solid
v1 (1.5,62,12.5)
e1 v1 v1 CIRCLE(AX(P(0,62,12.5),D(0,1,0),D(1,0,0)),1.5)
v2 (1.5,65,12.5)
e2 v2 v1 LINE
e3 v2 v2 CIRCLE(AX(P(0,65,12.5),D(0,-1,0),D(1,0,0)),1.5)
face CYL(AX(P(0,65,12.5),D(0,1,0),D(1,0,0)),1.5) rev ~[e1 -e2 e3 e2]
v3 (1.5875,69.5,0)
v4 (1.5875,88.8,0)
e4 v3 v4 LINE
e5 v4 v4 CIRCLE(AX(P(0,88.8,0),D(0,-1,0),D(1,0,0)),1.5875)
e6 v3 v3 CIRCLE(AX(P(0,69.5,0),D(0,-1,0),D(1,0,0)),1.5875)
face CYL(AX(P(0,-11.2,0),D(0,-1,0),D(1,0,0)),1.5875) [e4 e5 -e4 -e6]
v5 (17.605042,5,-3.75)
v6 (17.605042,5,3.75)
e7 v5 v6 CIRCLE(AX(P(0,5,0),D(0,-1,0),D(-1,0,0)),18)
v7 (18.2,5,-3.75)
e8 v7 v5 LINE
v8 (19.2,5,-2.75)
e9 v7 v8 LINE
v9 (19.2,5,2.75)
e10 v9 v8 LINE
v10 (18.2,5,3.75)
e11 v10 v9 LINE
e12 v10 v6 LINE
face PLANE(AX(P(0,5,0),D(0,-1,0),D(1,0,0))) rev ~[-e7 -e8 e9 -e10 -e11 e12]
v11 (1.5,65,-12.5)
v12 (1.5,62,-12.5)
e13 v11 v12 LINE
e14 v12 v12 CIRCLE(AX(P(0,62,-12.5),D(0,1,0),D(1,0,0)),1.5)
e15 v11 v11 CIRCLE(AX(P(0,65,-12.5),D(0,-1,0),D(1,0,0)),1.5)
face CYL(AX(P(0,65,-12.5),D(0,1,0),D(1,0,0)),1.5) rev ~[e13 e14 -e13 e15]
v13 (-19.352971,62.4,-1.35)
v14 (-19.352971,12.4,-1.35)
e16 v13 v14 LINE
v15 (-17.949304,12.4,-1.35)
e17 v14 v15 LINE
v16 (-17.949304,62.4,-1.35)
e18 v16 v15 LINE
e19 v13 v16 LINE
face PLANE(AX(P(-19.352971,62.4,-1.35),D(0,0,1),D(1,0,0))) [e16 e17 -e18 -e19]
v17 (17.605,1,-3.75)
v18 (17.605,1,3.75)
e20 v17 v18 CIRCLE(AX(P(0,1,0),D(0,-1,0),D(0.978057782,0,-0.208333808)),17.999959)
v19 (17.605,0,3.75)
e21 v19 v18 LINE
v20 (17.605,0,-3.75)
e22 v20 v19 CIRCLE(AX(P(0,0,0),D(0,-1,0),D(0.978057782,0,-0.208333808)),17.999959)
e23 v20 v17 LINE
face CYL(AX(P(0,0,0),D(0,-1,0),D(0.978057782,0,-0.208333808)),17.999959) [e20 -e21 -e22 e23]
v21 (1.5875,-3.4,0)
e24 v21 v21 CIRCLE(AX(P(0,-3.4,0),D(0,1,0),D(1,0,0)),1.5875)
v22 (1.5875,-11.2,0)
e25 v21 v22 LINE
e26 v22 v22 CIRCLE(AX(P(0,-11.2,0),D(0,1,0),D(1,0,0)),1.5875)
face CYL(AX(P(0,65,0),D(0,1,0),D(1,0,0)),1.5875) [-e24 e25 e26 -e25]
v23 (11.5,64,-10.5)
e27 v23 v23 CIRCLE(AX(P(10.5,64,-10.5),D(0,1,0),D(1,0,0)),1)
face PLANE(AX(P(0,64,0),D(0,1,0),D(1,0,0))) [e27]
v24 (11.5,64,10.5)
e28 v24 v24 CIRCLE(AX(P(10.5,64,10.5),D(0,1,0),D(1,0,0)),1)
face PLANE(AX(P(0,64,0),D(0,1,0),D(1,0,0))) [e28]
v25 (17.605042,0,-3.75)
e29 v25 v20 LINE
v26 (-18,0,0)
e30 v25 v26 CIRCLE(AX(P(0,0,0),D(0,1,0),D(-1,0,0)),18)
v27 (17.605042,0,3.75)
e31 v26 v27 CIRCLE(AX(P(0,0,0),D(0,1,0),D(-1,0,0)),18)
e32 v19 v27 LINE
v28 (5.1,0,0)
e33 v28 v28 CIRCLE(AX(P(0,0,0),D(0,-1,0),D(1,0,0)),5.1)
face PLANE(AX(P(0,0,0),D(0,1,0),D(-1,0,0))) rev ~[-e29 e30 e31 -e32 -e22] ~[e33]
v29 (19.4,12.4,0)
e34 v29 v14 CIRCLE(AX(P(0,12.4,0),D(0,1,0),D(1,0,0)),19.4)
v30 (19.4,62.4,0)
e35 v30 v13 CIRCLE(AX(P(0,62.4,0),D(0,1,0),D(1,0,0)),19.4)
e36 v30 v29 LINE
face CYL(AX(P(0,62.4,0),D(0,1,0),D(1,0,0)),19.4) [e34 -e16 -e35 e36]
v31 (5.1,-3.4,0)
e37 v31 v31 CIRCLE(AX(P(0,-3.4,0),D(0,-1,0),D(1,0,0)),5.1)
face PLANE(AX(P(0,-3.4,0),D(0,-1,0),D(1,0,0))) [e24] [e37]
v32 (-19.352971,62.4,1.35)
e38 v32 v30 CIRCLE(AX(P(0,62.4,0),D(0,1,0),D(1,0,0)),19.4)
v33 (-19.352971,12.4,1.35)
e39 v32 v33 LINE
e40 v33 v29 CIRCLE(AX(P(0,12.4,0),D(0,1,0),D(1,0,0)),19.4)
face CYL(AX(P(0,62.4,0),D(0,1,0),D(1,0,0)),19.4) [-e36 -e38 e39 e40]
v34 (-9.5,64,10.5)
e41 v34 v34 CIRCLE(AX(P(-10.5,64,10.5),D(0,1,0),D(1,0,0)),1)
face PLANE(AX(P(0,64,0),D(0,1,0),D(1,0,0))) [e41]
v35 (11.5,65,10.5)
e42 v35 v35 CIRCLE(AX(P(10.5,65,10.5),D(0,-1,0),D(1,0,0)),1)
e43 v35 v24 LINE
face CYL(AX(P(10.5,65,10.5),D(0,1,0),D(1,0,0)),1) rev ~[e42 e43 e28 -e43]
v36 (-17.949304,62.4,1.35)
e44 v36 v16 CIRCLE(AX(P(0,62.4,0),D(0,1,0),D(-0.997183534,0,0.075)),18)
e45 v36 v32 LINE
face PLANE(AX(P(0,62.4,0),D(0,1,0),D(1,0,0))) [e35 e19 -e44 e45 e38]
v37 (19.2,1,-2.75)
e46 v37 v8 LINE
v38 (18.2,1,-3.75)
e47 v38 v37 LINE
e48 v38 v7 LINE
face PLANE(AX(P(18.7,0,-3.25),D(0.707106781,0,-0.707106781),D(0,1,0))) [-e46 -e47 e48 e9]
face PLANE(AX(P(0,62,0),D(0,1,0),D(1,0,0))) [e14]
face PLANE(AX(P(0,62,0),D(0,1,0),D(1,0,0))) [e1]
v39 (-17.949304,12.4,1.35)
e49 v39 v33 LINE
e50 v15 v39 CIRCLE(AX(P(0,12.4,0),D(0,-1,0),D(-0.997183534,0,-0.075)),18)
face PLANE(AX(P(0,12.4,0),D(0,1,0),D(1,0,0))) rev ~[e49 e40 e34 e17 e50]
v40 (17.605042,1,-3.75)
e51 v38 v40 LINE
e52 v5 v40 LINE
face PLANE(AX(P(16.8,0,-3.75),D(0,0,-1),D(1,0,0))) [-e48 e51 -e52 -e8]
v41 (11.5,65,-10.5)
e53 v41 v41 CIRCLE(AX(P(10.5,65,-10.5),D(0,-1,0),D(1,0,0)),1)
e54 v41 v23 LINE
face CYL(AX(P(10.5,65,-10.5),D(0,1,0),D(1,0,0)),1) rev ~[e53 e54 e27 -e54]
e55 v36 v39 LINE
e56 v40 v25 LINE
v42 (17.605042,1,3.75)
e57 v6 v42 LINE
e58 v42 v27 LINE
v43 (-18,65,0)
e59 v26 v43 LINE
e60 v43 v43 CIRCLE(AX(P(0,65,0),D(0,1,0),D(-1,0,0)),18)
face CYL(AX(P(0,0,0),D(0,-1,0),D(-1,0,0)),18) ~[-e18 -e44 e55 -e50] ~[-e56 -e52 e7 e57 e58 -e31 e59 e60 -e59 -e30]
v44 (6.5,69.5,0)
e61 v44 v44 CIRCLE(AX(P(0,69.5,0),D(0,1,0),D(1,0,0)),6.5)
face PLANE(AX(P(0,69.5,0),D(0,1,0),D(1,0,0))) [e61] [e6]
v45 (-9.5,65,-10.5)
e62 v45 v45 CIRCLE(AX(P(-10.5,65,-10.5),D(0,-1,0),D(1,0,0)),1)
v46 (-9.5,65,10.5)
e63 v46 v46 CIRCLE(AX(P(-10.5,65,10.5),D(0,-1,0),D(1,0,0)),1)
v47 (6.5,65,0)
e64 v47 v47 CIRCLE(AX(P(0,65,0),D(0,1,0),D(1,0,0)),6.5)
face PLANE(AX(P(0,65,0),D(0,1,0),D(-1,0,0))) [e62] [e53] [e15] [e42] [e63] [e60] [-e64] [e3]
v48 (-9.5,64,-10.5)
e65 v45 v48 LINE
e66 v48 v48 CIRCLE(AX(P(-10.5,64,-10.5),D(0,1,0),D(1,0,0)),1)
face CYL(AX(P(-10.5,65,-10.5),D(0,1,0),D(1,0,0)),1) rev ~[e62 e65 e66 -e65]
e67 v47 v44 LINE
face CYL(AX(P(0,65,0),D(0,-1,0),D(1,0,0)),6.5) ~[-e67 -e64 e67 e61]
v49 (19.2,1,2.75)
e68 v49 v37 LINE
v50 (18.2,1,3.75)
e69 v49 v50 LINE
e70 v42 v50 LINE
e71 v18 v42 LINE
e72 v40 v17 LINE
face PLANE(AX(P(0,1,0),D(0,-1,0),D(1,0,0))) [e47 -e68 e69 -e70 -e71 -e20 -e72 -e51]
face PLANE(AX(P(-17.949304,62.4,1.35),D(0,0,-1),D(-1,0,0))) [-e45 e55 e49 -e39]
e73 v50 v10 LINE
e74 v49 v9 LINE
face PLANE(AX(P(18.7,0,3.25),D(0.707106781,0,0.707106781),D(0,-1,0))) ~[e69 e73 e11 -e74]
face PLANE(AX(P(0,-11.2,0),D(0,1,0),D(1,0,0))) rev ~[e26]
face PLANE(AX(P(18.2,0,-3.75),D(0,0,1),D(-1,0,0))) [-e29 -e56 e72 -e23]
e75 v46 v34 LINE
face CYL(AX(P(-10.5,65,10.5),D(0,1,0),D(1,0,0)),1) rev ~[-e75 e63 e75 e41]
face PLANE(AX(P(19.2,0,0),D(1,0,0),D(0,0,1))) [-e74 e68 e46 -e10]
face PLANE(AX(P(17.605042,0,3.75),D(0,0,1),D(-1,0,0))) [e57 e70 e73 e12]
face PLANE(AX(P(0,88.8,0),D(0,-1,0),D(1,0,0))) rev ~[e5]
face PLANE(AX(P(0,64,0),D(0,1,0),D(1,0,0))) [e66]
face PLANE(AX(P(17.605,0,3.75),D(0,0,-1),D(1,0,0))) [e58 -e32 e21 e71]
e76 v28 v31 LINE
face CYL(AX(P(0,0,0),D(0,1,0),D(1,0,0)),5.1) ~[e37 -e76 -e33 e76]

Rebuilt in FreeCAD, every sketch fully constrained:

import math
import FreeCAD as App
import Part
import Sketcher


def edges_at(feature, points):
    """Names of the edges that pass closest to the given points."""
    edges = feature.Shape.Edges
    near = lambda p: min(range(len(edges)), key=lambda i: edges[i].distToShape(Part.Vertex(*p))[0])
    return sorted({f"Edge{near(p) + 1}" for p in points})

doc = App.newDocument("Part")
body = doc.addObject("PartDesign::Body", "Body")

sketch1 = doc.addObject("Sketcher::SketchObject", "Sketch")
body.addObject(sketch1)
sketch1.AttachmentSupport = (doc.XZ_Plane, [""])
sketch1.MapMode = "FlatFace"
sketch1.addGeometry(Part.Circle(App.Vector(0, 0, 0), App.Vector(0, 0, 1), 18), False)
sketch1.addConstraint([
    Sketcher.Constraint("Coincident", 0, 3, -1, 1),
    Sketcher.Constraint("Diameter", 0, 36.0),
])
pad1 = doc.addObject("PartDesign::Pad", "Pad")
body.addObject(pad1)
pad1.Profile = sketch1
pad1.Length = 65
pad1.Reversed = True

sketch2 = doc.addObject("Sketcher::SketchObject", "Sketch001")
body.addObject(sketch2)
sketch2.AttachmentSupport = (doc.XZ_Plane, [""])
sketch2.MapMode = "FlatFace"
sketch2.AttachmentOffset = App.Placement(App.Vector(0, 0, -62.4), App.Rotation())
sketch2.addGeometry([
    Part.ArcOfCircle(Part.Circle(App.Vector(0, 0, 0), App.Vector(0, 0, 1), 18), math.radians(-175.698778), math.radians(175.698778)),
    Part.LineSegment(App.Vector(-17.949304, 1.35, 0), App.Vector(-19.352971, 1.35, 0)),
    Part.ArcOfCircle(Part.Circle(App.Vector(0, 0, 0), App.Vector(0, 0, 1), 19.4), math.radians(-176.009698), math.radians(176.009698)),
    Part.LineSegment(App.Vector(-19.352971, -1.35, 0), App.Vector(-17.949304, -1.35, 0)),
], False)
sketch2.addConstraint([
    Sketcher.Constraint("Coincident", 0, 2, 1, 1),
    Sketcher.Constraint("Coincident", 1, 2, 2, 2),
    Sketcher.Constraint("Coincident", 2, 1, 3, 1),
    Sketcher.Constraint("Coincident", 3, 2, 0, 1),
    Sketcher.Constraint("Horizontal", 1),
    Sketcher.Constraint("Horizontal", 3),
    Sketcher.Constraint("Coincident", 0, 3, -1, 1),
    Sketcher.Constraint("Coincident", 2, 3, -1, 1),
    Sketcher.Constraint("Vertical", 1, 2, 2, 1),
    Sketcher.Constraint("Radius", 2, 19.4),
    Sketcher.Constraint("Radius", 0, 18.0),
    Sketcher.Constraint("DistanceY", 2, 1, 1, 2, 2.7),
])
pad2 = doc.addObject("PartDesign::Pad", "Pad001")
body.addObject(pad2)
pad2.Profile = sketch2
pad2.Length = 50

sketch3 = doc.addObject("Sketcher::SketchObject", "Sketch002")
body.addObject(sketch3)
sketch3.AttachmentSupport = (doc.XZ_Plane, [""])
sketch3.MapMode = "FlatFace"
sketch3.AttachmentOffset = App.Placement(App.Vector(0, 0, -65), App.Rotation())
sketch3.addGeometry(Part.Circle(App.Vector(0, 0, 0), App.Vector(0, 0, 1), 6.5), False)
sketch3.addConstraint([
    Sketcher.Constraint("Coincident", 0, 3, -1, 1),
    Sketcher.Constraint("Diameter", 0, 13.0),
])
pad3 = doc.addObject("PartDesign::Pad", "Pad002")
body.addObject(pad3)
pad3.Profile = sketch3
pad3.Length = 4.5
pad3.Reversed = True

sketch4 = doc.addObject("Sketcher::SketchObject", "Sketch003")
body.addObject(sketch4)
sketch4.AttachmentSupport = (doc.XZ_Plane, [""])
sketch4.MapMode = "FlatFace"
sketch4.addGeometry(Part.Circle(App.Vector(0, 0, 0), App.Vector(0, 0, 1), 5.1), False)
sketch4.addConstraint([
    Sketcher.Constraint("Coincident", 0, 3, -1, 1),
    Sketcher.Constraint("Diameter", 0, 10.2),
])
pad4 = doc.addObject("PartDesign::Pad", "Pad003")
body.addObject(pad4)
pad4.Profile = sketch4
pad4.Length = 3.4

sketch5 = doc.addObject("Sketcher::SketchObject", "Sketch004")
body.addObject(sketch5)
sketch5.AttachmentSupport = (doc.XZ_Plane, [""])
sketch5.MapMode = "FlatFace"
sketch5.AttachmentOffset = App.Placement(App.Vector(0, 0, -65), App.Rotation())
sketch5.addGeometry([
    Part.Circle(App.Vector(0, 12.5, 0), App.Vector(0, 0, 1), 1.5),
    Part.Circle(App.Vector(0, -12.5, 0), App.Vector(0, 0, 1), 1.5),
], False)
sketch5.addConstraint([
    Sketcher.Constraint("Equal", 0, 1),
    Sketcher.Constraint("Symmetric", 0, 3, 1, 3, -1, 1),
    Sketcher.Constraint("PointOnObject", 0, 3, -2),
    Sketcher.Constraint("Diameter", 0, 3.0),
    Sketcher.Constraint("DistanceY", -1, 1, 0, 3, 12.5),
])
pocket1 = doc.addObject("PartDesign::Pocket", "Pocket")
body.addObject(pocket1)
pocket1.Profile = sketch5
pocket1.Length = 3
pocket1.Reversed = True

sketch6 = doc.addObject("Sketcher::SketchObject", "Sketch005")
body.addObject(sketch6)
sketch6.AttachmentSupport = (doc.XZ_Plane, [""])
sketch6.MapMode = "FlatFace"
sketch6.AttachmentOffset = App.Placement(App.Vector(0, 0, -65), App.Rotation())
sketch6.addGeometry([
    Part.Circle(App.Vector(-10.5, -10.5, 0), App.Vector(0, 0, 1), 1),
    Part.Circle(App.Vector(10.5, -10.5, 0), App.Vector(0, 0, 1), 1),
    Part.Circle(App.Vector(-10.5, 10.5, 0), App.Vector(0, 0, 1), 1),
    Part.Circle(App.Vector(10.5, 10.5, 0), App.Vector(0, 0, 1), 1),
], False)
sketch6.addConstraint([
    Sketcher.Constraint("Equal", 0, 1),
    Sketcher.Constraint("Equal", 1, 2),
    Sketcher.Constraint("Equal", 2, 3),
    Sketcher.Constraint("Symmetric", 1, 3, 2, 3, -1, 1),
    Sketcher.Constraint("Symmetric", 0, 3, 3, 3, -1, 1),
    Sketcher.Constraint("Symmetric", 0, 3, 1, 3, -2),
    Sketcher.Constraint("Diameter", 0, 2.0),
    Sketcher.Constraint("DistanceX", 0, 3, 1, 3, 21.0),
    Sketcher.Constraint("DistanceY", 0, 3, 2, 3, 21.0),
])
pocket2 = doc.addObject("PartDesign::Pocket", "Pocket001")
body.addObject(pocket2)
pocket2.Profile = sketch6
pocket2.Length = 1
pocket2.Reversed = True

sketch7 = doc.addObject("Sketcher::SketchObject", "Sketch006")
body.addObject(sketch7)
sketch7.AttachmentSupport = (doc.XZ_Plane, [""])
sketch7.MapMode = "FlatFace"
sketch7.AttachmentOffset = App.Placement(App.Vector(0, 0, -65), App.Rotation())
sketch7.addGeometry(Part.Circle(App.Vector(0, 0, 0), App.Vector(0, 0, 1), 1.5875), False)
sketch7.addConstraint([
    Sketcher.Constraint("Coincident", 0, 3, -1, 1),
    Sketcher.Constraint("Diameter", 0, 3.175),
])
pad5 = doc.addObject("PartDesign::Pad", "Pad004")
body.addObject(pad5)
pad5.Profile = sketch7
pad5.Length = 76.2

sketch8 = doc.addObject("Sketcher::SketchObject", "Sketch007")
body.addObject(sketch8)
sketch8.AttachmentSupport = (doc.XZ_Plane, [""])
sketch8.MapMode = "FlatFace"
sketch8.AttachmentOffset = App.Placement(App.Vector(0, 0, 11.2), App.Rotation())
sketch8.addGeometry(Part.Circle(App.Vector(0, 0, 0), App.Vector(0, 0, 1), 1.5875), False)
sketch8.addConstraint([
    Sketcher.Constraint("Coincident", 0, 3, -1, 1),
    Sketcher.Constraint("Diameter", 0, 3.175),
])
pad6 = doc.addObject("PartDesign::Pad", "Pad005")
body.addObject(pad6)
pad6.Profile = sketch8
pad6.Length = 100
pad6.Reversed = True

sketch9 = doc.addObject("Sketcher::SketchObject", "Sketch008")
body.addObject(sketch9)
sketch9.AttachmentSupport = (doc.XZ_Plane, [""])
sketch9.MapMode = "FlatFace"
sketch9.addGeometry([
    Part.LineSegment(App.Vector(16.8, 3.75, 0), App.Vector(16.8, -3.75, 0)),
    Part.LineSegment(App.Vector(16.8, -3.75, 0), App.Vector(19.2, -3.75, 0)),
    Part.LineSegment(App.Vector(19.2, -3.75, 0), App.Vector(19.2, 3.75, 0)),
    Part.LineSegment(App.Vector(19.2, 3.75, 0), App.Vector(16.8, 3.75, 0)),
], False)
sketch9.addConstraint([
    Sketcher.Constraint("Coincident", 0, 2, 1, 1),
    Sketcher.Constraint("Coincident", 1, 2, 2, 1),
    Sketcher.Constraint("Coincident", 2, 2, 3, 1),
    Sketcher.Constraint("Coincident", 3, 2, 0, 1),
    Sketcher.Constraint("Vertical", 0),
    Sketcher.Constraint("Horizontal", 1),
    Sketcher.Constraint("Vertical", 2),
    Sketcher.Constraint("Horizontal", 3),
    Sketcher.Constraint("DistanceX", 1, 1, 1, 2, 2.4),
    Sketcher.Constraint("DistanceY", 0, 2, 0, 1, 7.5),
    Sketcher.Constraint("DistanceX", -1, 1, 1, 2, 19.2),
    Sketcher.Constraint("DistanceY", 0, 2, -1, 1, 3.75),
])
pad7 = doc.addObject("PartDesign::Pad", "Pad006")
body.addObject(pad7)
pad7.Profile = sketch9
pad7.Length = 5
pad7.Reversed = True
doc.recompute()

chamfer = doc.addObject("PartDesign::Chamfer", "Chamfer")
body.addObject(chamfer)
chamfer.Base = (pad7, edges_at(pad7, [(19.2, 2.5, -3.75), (19.2, 2.5, 3.75)]))
chamfer.Size = 1

sketch10 = doc.addObject("Sketcher::SketchObject", "Sketch009")
body.addObject(sketch10)
sketch10.AttachmentSupport = (doc.XZ_Plane, [""])
sketch10.MapMode = "FlatFace"
sketch10.addGeometry([
    Part.LineSegment(App.Vector(19.2, -2.75, 0), App.Vector(19.2, 2.75, 0)),
    Part.LineSegment(App.Vector(19.2, 2.75, 0), App.Vector(18.2, 3.75, 0)),
    Part.LineSegment(App.Vector(18.2, 3.75, 0), App.Vector(17.605, 3.75, 0)),
    Part.ArcOfCircle(Part.Circle(App.Vector(0, 0, 0), App.Vector(0, 0, 1), 17.999959), math.radians(-12.024727), math.radians(12.024727)),
    Part.LineSegment(App.Vector(17.605, -3.75, 0), App.Vector(18.2, -3.75, 0)),
    Part.LineSegment(App.Vector(18.2, -3.75, 0), App.Vector(19.2, -2.75, 0)),
], False)
sketch10.addConstraint([
    Sketcher.Constraint("Coincident", 0, 2, 1, 1),
    Sketcher.Constraint("Coincident", 1, 2, 2, 1),
    Sketcher.Constraint("Coincident", 2, 2, 3, 2),
    Sketcher.Constraint("Coincident", 3, 1, 4, 1),
    Sketcher.Constraint("Coincident", 4, 2, 5, 1),
    Sketcher.Constraint("Coincident", 5, 2, 0, 1),
    Sketcher.Constraint("Vertical", 0),
    Sketcher.Constraint("Horizontal", 2),
    Sketcher.Constraint("Horizontal", 4),
    Sketcher.Constraint("Coincident", 3, 3, -1, 1),
    Sketcher.Constraint("Symmetric", 1, 2, 4, 2, -1),
    Sketcher.Constraint("Perpendicular", 1, 5),
    Sketcher.Constraint("Equal", 1, 5),
    Sketcher.Constraint("Radius", 3, 18.0),
    Sketcher.Constraint("DistanceY", 0, 1, 0, 2, 5.5),
    Sketcher.Constraint("DistanceX", 1, 2, 0, 2, 1.0),
    Sketcher.Constraint("DistanceX", -1, 1, 0, 2, 19.2),
])
pocket3 = doc.addObject("PartDesign::Pocket", "Pocket002")
body.addObject(pocket3)
pocket3.Profile = sketch10
pocket3.Length = 1

doc.recompute()
